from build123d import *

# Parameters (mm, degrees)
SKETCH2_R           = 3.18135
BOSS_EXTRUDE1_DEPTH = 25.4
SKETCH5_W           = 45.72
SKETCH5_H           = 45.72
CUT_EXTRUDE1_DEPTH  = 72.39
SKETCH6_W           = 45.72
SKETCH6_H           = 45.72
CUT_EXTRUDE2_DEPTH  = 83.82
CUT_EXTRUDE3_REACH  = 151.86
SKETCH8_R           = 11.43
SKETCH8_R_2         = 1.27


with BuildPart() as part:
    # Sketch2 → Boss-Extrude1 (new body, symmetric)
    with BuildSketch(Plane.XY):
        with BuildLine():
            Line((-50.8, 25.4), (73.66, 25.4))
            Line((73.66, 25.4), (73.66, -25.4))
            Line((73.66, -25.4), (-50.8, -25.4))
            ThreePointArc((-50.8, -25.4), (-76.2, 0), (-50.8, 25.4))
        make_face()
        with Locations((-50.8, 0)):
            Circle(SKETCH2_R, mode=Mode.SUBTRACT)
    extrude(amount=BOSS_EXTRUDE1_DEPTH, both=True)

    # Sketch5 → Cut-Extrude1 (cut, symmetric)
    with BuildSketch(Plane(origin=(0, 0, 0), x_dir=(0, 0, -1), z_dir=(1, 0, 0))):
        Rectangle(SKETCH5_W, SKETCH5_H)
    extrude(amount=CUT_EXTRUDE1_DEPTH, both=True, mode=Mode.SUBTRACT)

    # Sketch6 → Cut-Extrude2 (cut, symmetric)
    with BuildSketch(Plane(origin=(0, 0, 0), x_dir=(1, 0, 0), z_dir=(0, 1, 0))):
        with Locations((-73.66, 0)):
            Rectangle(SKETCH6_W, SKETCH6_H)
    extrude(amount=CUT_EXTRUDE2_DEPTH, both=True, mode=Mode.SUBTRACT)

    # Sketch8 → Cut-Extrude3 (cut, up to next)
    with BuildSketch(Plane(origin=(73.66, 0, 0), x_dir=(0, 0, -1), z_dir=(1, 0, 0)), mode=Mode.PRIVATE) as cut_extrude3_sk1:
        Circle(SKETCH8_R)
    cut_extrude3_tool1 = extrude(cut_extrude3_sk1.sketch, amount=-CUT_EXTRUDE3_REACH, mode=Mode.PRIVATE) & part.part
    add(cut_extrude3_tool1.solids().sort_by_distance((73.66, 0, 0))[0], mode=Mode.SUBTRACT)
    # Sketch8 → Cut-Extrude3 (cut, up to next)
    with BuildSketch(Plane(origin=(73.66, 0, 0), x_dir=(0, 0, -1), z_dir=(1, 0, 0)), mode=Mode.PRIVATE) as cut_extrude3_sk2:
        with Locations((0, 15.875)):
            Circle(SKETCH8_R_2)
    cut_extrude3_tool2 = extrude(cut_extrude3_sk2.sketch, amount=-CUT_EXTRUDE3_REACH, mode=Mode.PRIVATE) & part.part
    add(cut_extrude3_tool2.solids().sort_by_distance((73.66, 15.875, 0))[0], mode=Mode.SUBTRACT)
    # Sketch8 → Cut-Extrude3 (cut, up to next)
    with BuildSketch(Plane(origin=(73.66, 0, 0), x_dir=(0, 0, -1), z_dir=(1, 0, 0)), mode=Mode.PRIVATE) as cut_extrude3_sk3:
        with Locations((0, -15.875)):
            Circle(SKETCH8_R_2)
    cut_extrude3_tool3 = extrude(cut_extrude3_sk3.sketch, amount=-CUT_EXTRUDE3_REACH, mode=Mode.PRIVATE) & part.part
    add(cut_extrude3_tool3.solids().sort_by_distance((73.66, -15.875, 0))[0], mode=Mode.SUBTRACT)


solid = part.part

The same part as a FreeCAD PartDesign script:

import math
import FreeCAD as App
import Part
import Sketcher

V = App.Vector
Q = App.Units.Quantity


def add_polygon(sketch, points):
    """Adds a closed chain of lines whose ends are joined by coincident constraints."""
    first, n = sketch.GeometryCount, len(points)
    for a, b in zip(points, points[1:] + points[:1]):
        sketch.addGeometry(Part.LineSegment(App.Vector(*a, 0), App.Vector(*b, 0)), False)
    for i in range(n):
        sketch.addConstraint(Sketcher.Constraint("Coincident", first + i, 2, first + (i + 1) % n, 1))

doc = App.newDocument("Part")
body = doc.addObject("PartDesign::Body", "Body")

# Sketch on XY plane
sketch1 = doc.addObject("Sketcher::SketchObject", "Sketch")
body.addObject(sketch1)
sketch1.AttachmentSupport = (doc.XY_Plane, [""])
sketch1.MapMode = "FlatFace"
sketch1.addGeometry([
    Part.LineSegment(V(73.7, 25.4, 0), V(-50.8, 25.4, 0)),  # 0
    Part.ArcOfCircle(Part.Circle(V(-50.8, 0, 0), V(0, 0, 1), 25.4), math.radians(90), math.radians(270)),  # 1
    Part.LineSegment(V(-50.8, -25.4, 0), V(73.7, -25.4, 0)),  # 2
    Part.LineSegment(V(73.7, -25.4, 0), V(73.7, 25.4, 0)),  # 3
    Part.Circle(V(-50.8, 0, 0), V(0, 0, 1), 3.2),  # 4
], False)
sketch1.addConstraint([
    Sketcher.Constraint("Tangent", 0, 2, 1, 1),
    Sketcher.Constraint("Tangent", 1, 2, 2, 1),
    Sketcher.Constraint("Coincident", 2, 2, 3, 1),
    Sketcher.Constraint("Coincident", 3, 2, 0, 1),
    Sketcher.Constraint("Horizontal", 0),
    Sketcher.Constraint("Horizontal", 2),
    Sketcher.Constraint("Vertical", 3),
    Sketcher.Constraint("Coincident", 4, 3, 1, 3),
    Sketcher.Constraint("PointOnObject", 1, 3, -1),
    Sketcher.Constraint("Radius", 1, Q("1 in")),
    Sketcher.Constraint("DistanceX", 0, 2, 0, 1, Q("4.9 in")),
    Sketcher.Constraint("DistanceX", 1, 3, -1, 1, Q("2 in")),
    Sketcher.Constraint("Diameter", 4, Q("0.2505 in")),
])
pad1 = doc.addObject("PartDesign::Pad", "Pad")
body.addObject(pad1)
pad1.Profile = sketch1
pad1.Length = Q("2 in")
pad1.Midplane = True

# Sketch on YZ plane
sketch2 = doc.addObject("Sketcher::SketchObject", "Sketch001")
body.addObject(sketch2)
sketch2.AttachmentSupport = (doc.YZ_Plane, [""])
sketch2.MapMode = "FlatFace"
add_polygon(sketch2, [(23, 23), (-23, 23), (-23, -23), (23, -23)])  # lines 0-3
sketch2.addConstraint([
    Sketcher.Constraint("Horizontal", 0),
    Sketcher.Constraint("Vertical", 1),
    Sketcher.Constraint("Horizontal", 2),
    Sketcher.Constraint("Vertical", 3),
    Sketcher.Constraint("Symmetric", 0, 2, 2, 2, -1, 1),
    Sketcher.Constraint("Equal", 2, 1),
    Sketcher.Constraint("DistanceX", 0, 2, 0, 1, Q("1.8 in")),
])
pocket1 = doc.addObject("PartDesign::Pocket", "Pocket")
body.addObject(pocket1)
pocket1.Profile = sketch2
pocket1.Length = Q("5.7 in")
pocket1.Midplane = True

# Sketch on XZ plane
sketch3 = doc.addObject("Sketcher::SketchObject", "Sketch002")
body.addObject(sketch3)
sketch3.AttachmentSupport = (doc.XZ_Plane, [""])
sketch3.MapMode = "FlatFace"
add_polygon(sketch3, [(-97, -23), (-97, 23), (-51, 23), (-51, -23)])  # lines 0-3
sketch3.addConstraint([
    Sketcher.Constraint("Vertical", 0),
    Sketcher.Constraint("Horizontal", 1),
    Sketcher.Constraint("Vertical", 2),
    Sketcher.Constraint("Horizontal", 3),
    Sketcher.Constraint("Equal", 3, 0),
    Sketcher.Constraint("DistanceX", 1, 1, 1, 2, Q("1.8 in")),
    Sketcher.Constraint("DistanceX", 1, 2, -1, 1, Q("2 in")),
    Sketcher.Constraint("DistanceY", -1, 1, 0, 2, Q("0.9 in")),
])
pocket2 = doc.addObject("PartDesign::Pocket", "Pocket001")
body.addObject(pocket2)
pocket2.Profile = sketch3
pocket2.Length = Q("6.6 in")
pocket2.Midplane = True

# Sketch on YZ plane
sketch4 = doc.addObject("Sketcher::SketchObject", "Sketch003")
body.addObject(sketch4)
sketch4.AttachmentSupport = (doc.YZ_Plane, [""])
sketch4.MapMode = "FlatFace"
sketch4.AttachmentOffset = App.Placement(V(0, 0, 2.9 * 25.4), App.Rotation())
sketch4.addGeometry(Part.Circle(V(0, 0, 0), V(0, 0, 1), 11), False)
sketch4.addConstraint([
    Sketcher.Constraint("Coincident", 0, 3, -1, 1),
    Sketcher.Constraint("Diameter", 0, Q("0.9 in")),
])
pocket3 = doc.addObject("PartDesign::Pocket", "Pocket002")
body.addObject(pocket3)
pocket3.Profile = sketch4
pocket3.Type = "UpToFirst"

# Sketch on YZ plane
sketch5 = doc.addObject("Sketcher::SketchObject", "Sketch004")
body.addObject(sketch5)
sketch5.AttachmentSupport = (doc.YZ_Plane, [""])
sketch5.MapMode = "FlatFace"
sketch5.AttachmentOffset = App.Placement(V(0, 0, 2.9 * 25.4), App.Rotation())
sketch5.addGeometry(Part.Circle(V(15.9, 0, 0), V(0, 0, 1), 1.3), False)
sketch5.addConstraint([
    Sketcher.Constraint("PointOnObject", 0, 3, -1),
    Sketcher.Constraint("Diameter", 0, Q("0.1 in")),
    Sketcher.Constraint("DistanceX", -1, 1, 0, 3, Q("0.625 in")),
])
pocket4 = doc.addObject("PartDesign::Pocket", "Pocket003")
body.addObject(pocket4)
pocket4.Profile = sketch5
pocket4.Type = "UpToFirst"

# Sketch on YZ plane
sketch6 = doc.addObject("Sketcher::SketchObject", "Sketch005")
body.addObject(sketch6)
sketch6.AttachmentSupport = (doc.YZ_Plane, [""])
sketch6.MapMode = "FlatFace"
sketch6.AttachmentOffset = App.Placement(V(0, 0, 2.9 * 25.4), App.Rotation())
sketch6.addGeometry(Part.Circle(V(-15.9, 0, 0), V(0, 0, 1), 1.3), False)
sketch6.addConstraint([
    Sketcher.Constraint("PointOnObject", 0, 3, -1),
    Sketcher.Constraint("Diameter", 0, Q("0.1 in")),
    Sketcher.Constraint("DistanceX", 0, 3, -1, 1, Q("0.625 in")),
])
pocket5 = doc.addObject("PartDesign::Pocket", "Pocket004")
body.addObject(pocket5)
pocket5.Profile = sketch6
pocket5.Type = "UpToFirst"

doc.recompute()
